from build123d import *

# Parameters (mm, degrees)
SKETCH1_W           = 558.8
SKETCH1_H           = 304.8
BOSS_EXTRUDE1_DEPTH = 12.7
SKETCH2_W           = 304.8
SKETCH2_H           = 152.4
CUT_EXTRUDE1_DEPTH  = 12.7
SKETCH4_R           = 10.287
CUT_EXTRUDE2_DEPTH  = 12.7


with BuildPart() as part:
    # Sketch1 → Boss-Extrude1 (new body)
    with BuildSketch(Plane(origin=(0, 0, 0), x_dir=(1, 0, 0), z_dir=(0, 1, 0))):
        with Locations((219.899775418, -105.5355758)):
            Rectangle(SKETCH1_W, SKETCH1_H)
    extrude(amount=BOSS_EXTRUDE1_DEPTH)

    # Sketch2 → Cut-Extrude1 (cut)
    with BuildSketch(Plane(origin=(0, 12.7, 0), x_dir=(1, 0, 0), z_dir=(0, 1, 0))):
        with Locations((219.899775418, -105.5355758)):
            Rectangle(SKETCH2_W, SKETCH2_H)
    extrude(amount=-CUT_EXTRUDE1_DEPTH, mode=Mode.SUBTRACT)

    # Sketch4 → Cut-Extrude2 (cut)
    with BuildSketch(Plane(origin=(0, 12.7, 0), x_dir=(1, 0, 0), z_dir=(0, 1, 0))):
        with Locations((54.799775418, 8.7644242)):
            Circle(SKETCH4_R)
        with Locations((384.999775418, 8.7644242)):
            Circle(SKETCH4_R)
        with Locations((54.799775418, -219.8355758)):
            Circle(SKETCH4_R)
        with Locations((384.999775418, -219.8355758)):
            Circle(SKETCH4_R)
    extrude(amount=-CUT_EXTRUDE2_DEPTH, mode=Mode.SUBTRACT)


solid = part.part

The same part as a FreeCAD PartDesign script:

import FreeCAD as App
import Part
import Sketcher

V = App.Vector
Q = App.Units.Quantity

doc = App.newDocument("Part")
body = doc.addObject("PartDesign::Body", "Body")

# Sketch on XZ plane
sketch1 = body.newObject("Sketcher::SketchObject", "Sketch")
sketch1.AttachmentSupport = (doc.getObject("XZ_Plane"), [""])
sketch1.MapMode = "FlatFace"
sketch1.addGeometry([
    Part.LineSegment(V(-59.500225, -46.864424, 0), V(-59.500225, 257.935576, 0)),
    Part.LineSegment(V(-59.500225, 257.935576, 0), V(499.299775, 257.935576, 0)),
    Part.LineSegment(V(499.299775, 257.935576, 0), V(499.299775, -46.864424, 0)),
    Part.LineSegment(V(499.299775, -46.864424, 0), V(-59.500225, -46.864424, 0)),
], False)
sketch1.addConstraint([
    Sketcher.Constraint("Coincident", 0, 2, 1, 1),
    Sketcher.Constraint("Coincident", 1, 2, 2, 1),
    Sketcher.Constraint("Coincident", 2, 2, 3, 1),
    Sketcher.Constraint("Coincident", 3, 2, 0, 1),
    Sketcher.Constraint("Vertical", 0),
    Sketcher.Constraint("Horizontal", 1),
    Sketcher.Constraint("Vertical", 2),
    Sketcher.Constraint("Horizontal", 3),
    Sketcher.Constraint("DistanceX", 1, 1, 1, 2, Q("22 in")),
    Sketcher.Constraint("DistanceY", 0, 1, 0, 2, Q("12 in")),
    Sketcher.Constraint("DistanceX", 0, 2, -1, 1, 59.500225),
    Sketcher.Constraint("DistanceY", -1, 1, 0, 2, 257.935576),
])
pad1 = body.newObject("PartDesign::Pad", "Pad")
pad1.Profile = sketch1
pad1.Length = Q("0.5 in")
pad1.Reversed = True

# Sketch on XZ plane
sketch2 = body.newObject("Sketcher::SketchObject", "Sketch001")
sketch2.AttachmentSupport = (doc.getObject("XZ_Plane"), [""])
sketch2.MapMode = "FlatFace"
sketch2.AttachmentOffset = App.Placement(V(0, 0, -0.5 * 25.4), App.Rotation())
sketch2.addGeometry([
    Part.LineSegment(V(67.499775, 29.335576, 0), V(67.499775, 181.735576, 0)),
    Part.LineSegment(V(67.499775, 181.735576, 0), V(372.299775, 181.735576, 0)),
    Part.LineSegment(V(372.299775, 181.735576, 0), V(372.299775, 29.335576, 0)),
    Part.LineSegment(V(372.299775, 29.335576, 0), V(67.499775, 29.335576, 0)),
], False)
sketch2.addConstraint([
    Sketcher.Constraint("Coincident", 0, 2, 1, 1),
    Sketcher.Constraint("Coincident", 1, 2, 2, 1),
    Sketcher.Constraint("Coincident", 2, 2, 3, 1),
    Sketcher.Constraint("Coincident", 3, 2, 0, 1),
    Sketcher.Constraint("Vertical", 0),
    Sketcher.Constraint("Horizontal", 1),
    Sketcher.Constraint("Vertical", 2),
    Sketcher.Constraint("Horizontal", 3),
    Sketcher.Constraint("DistanceX", 1, 1, 1, 2, Q("12 in")),
    Sketcher.Constraint("DistanceY", 0, 1, 0, 2, Q("6 in")),
    Sketcher.Constraint("DistanceX", -1, 1, 0, 2, 67.499775),
    Sketcher.Constraint("DistanceY", -1, 1, 0, 2, 181.735576),
])
pocket1 = body.newObject("PartDesign::Pocket", "Pocket")
pocket1.Profile = sketch2
pocket1.Length = Q("0.5 in")
pocket1.Reversed = True

# Sketch on XZ plane
sketch3 = body.newObject("Sketcher::SketchObject", "Sketch002")
sketch3.AttachmentSupport = (doc.getObject("XZ_Plane"), [""])
sketch3.MapMode = "FlatFace"
sketch3.AttachmentOffset = App.Placement(V(0, 0, -0.5 * 25.4), App.Rotation())
sketch3.addGeometry([
    Part.Circle(V(54.799775, -8.764424, 0), V(0, 0, 1), 10.287),
    Part.Circle(V(384.999775, -8.764424, 0), V(0, 0, 1), 10.287),
    Part.Circle(V(54.799775, 219.835576, 0), V(0, 0, 1), 10.287),
    Part.Circle(V(384.999775, 219.835576, 0), V(0, 0, 1), 10.287),
], False)
sketch3.addConstraint([
    Sketcher.Constraint("Equal", 0, 1),
    Sketcher.Constraint("Equal", 1, 2),
    Sketcher.Constraint("Equal", 2, 3),
    Sketcher.Constraint("Horizontal", 0, 3, 1, 3),
    Sketcher.Constraint("Horizontal", 2, 3, 3, 3),
    Sketcher.Constraint("Vertical", 0, 3, 2, 3),
    Sketcher.Constraint("Vertical", 1, 3, 3, 3),
    Sketcher.Constraint("Diameter", 0, Q("0.81 in")),
    Sketcher.Constraint("DistanceX", 0, 3, 1, 3, Q("13 in")),
    Sketcher.Constraint("DistanceY", 0, 3, 2, 3, Q("9 in")),
    Sketcher.Constraint("DistanceX", -1, 1, 0, 3, 54.799775),
    Sketcher.Constraint("DistanceY", 0, 3, -1, 1, 8.764424),
])
pocket2 = body.newObject("PartDesign::Pocket", "Pocket001")
pocket2.Profile = sketch3
pocket2.Length = Q("0.5 in")
pocket2.Reversed = True

doc.recompute()
